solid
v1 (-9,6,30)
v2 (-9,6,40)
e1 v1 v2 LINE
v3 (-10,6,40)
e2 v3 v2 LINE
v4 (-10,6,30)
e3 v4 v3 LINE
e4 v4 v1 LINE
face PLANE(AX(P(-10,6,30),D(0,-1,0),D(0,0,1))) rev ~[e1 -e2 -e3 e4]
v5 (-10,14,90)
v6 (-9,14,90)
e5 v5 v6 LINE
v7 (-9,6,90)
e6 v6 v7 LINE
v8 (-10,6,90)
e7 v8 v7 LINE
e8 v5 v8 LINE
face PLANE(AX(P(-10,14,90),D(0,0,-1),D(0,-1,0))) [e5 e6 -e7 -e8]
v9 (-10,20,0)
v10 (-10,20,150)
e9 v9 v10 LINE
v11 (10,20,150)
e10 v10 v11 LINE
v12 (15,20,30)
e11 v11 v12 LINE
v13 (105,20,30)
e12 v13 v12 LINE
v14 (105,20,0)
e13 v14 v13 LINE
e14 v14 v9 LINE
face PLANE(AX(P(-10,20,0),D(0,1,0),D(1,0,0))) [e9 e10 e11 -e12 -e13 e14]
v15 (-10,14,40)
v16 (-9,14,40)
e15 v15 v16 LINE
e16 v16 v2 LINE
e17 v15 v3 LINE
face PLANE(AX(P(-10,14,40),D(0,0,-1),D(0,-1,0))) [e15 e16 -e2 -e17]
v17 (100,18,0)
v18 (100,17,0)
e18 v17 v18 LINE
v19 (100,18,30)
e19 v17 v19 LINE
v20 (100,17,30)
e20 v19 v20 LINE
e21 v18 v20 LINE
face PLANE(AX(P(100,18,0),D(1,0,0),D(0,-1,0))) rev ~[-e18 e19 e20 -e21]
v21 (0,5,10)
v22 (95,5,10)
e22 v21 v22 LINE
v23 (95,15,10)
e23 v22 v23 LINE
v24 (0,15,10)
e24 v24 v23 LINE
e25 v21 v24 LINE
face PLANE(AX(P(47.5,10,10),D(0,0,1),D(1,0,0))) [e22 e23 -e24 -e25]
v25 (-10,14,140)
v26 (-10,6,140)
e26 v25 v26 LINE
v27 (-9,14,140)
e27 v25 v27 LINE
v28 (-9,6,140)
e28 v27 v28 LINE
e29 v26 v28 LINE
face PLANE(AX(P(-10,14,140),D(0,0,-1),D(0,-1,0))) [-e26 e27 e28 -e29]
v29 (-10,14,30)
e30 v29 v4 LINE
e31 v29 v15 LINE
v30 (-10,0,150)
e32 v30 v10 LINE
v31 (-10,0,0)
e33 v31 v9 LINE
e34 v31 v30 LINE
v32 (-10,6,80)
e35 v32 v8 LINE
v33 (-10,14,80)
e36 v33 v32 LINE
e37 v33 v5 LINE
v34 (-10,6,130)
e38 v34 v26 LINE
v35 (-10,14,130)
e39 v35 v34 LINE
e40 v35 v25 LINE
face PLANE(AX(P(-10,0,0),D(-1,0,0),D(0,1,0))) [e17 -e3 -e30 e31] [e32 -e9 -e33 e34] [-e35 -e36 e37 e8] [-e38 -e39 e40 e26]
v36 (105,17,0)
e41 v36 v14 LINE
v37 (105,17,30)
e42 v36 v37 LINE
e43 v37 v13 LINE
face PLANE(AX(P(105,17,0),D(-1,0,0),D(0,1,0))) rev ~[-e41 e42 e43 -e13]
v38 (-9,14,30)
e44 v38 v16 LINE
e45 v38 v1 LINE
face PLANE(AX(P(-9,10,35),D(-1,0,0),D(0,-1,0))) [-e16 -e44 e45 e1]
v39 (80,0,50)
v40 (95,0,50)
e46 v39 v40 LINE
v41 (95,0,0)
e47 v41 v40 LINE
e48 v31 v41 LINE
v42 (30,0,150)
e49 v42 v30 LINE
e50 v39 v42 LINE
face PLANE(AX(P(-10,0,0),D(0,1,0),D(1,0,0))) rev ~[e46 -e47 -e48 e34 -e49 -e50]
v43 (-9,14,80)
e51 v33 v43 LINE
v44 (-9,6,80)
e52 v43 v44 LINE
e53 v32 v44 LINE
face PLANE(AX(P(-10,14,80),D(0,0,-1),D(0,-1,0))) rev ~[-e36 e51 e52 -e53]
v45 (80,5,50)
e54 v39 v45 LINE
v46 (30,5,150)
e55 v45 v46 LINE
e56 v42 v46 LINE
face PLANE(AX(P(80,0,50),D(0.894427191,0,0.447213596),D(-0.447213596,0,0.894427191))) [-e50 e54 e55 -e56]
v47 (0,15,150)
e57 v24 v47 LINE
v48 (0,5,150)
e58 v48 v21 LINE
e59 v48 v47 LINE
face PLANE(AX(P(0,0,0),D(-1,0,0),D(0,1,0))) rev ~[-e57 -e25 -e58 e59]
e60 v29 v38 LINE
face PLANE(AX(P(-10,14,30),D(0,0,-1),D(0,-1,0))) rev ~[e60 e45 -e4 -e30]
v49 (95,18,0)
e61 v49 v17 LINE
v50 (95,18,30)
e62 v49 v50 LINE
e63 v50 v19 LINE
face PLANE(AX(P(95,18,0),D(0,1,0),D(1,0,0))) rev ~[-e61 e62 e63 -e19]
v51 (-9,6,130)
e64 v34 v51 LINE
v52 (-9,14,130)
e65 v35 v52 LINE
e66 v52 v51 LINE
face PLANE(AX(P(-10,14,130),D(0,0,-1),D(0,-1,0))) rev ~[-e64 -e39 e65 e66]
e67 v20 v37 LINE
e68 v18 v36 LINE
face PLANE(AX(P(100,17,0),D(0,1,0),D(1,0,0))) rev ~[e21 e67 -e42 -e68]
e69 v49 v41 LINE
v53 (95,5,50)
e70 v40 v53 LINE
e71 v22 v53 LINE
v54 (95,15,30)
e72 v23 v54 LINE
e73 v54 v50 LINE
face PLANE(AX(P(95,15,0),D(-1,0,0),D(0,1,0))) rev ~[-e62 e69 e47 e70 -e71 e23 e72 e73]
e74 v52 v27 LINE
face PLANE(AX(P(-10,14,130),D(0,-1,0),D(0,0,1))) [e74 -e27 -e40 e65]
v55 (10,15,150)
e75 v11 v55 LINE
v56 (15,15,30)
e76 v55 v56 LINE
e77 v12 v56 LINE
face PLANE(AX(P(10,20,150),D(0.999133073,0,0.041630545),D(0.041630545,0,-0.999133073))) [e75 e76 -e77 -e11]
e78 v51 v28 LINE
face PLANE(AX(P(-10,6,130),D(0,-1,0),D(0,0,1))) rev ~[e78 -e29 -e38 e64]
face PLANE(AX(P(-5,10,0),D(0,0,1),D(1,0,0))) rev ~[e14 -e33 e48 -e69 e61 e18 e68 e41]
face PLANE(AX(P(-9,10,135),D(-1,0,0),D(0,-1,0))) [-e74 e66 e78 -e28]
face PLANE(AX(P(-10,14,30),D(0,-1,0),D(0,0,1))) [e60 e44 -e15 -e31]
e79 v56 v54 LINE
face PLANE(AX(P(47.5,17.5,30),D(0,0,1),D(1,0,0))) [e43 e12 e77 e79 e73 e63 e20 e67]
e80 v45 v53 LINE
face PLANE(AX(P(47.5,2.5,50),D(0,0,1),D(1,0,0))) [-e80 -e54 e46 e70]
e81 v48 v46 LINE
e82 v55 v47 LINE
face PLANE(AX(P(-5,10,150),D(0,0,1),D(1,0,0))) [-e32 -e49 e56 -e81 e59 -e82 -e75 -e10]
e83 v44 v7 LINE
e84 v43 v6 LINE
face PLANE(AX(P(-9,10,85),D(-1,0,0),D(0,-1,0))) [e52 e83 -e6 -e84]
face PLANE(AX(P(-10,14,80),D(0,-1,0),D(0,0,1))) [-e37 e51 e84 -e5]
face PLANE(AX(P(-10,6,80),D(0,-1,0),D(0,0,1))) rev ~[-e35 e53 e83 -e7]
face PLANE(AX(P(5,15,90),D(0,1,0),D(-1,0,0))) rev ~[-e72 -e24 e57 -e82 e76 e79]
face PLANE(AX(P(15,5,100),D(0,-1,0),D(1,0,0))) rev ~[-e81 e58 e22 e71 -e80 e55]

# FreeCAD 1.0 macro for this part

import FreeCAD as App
import Part
import Sketcher

V = App.Vector

doc = App.newDocument("Part")
body = doc.addObject("PartDesign::Body", "Body")

sketch1 = doc.addObject("Sketcher::SketchObject", "Sketch")
body.addObject(sketch1)
sketch1.AttachmentSupport = (doc.XY_Plane, [""])
sketch1.MapMode = "FlatFace"
sketch1.addGeometry(Part.LineSegment(V(0, 5, 0), V(0, 0, 0)), False)
sketch1.addGeometry(Part.LineSegment(V(0, 0, 0), V(95, 0, 0)), False)
sketch1.addGeometry(Part.LineSegment(V(95, 0, 0), V(95, 5, 0)), False)
sketch1.addGeometry(Part.LineSegment(V(95, 5, 0), V(0, 5, 0)), False)
sketch1.addConstraint(Sketcher.Constraint("Coincident", 0, 2, 1, 1))
sketch1.addConstraint(Sketcher.Constraint("Coincident", 1, 2, 2, 1))
sketch1.addConstraint(Sketcher.Constraint("Coincident", 2, 2, 3, 1))
sketch1.addConstraint(Sketcher.Constraint("Coincident", 3, 2, 0, 1))
sketch1.addConstraint(Sketcher.Constraint("Vertical", 0))
sketch1.addConstraint(Sketcher.Constraint("Horizontal", 1))
sketch1.addConstraint(Sketcher.Constraint("Vertical", 2))
sketch1.addConstraint(Sketcher.Constraint("Horizontal", 3))
sketch1.addConstraint(Sketcher.Constraint("Coincident", 0, 2, -1, 1))
sketch1.addConstraint(Sketcher.Constraint("DistanceX", 1, 1, 1, 2, 95.0))
sketch1.addConstraint(Sketcher.Constraint("DistanceY", 0, 2, 0, 1, 5.0))
pad1 = doc.addObject("PartDesign::Pad", "Pad")
body.addObject(pad1)
pad1.Profile = sketch1
pad1.Length = 50

sketch2 = doc.addObject("Sketcher::SketchObject", "Sketch001")
body.addObject(sketch2)
sketch2.AttachmentSupport = (doc.XY_Plane, [""])
sketch2.MapMode = "FlatFace"
sketch2.addGeometry(Part.LineSegment(V(0, 15, 0), V(0, 5, 0)), False)
sketch2.addGeometry(Part.LineSegment(V(0, 5, 0), V(95, 5, 0)), False)
sketch2.addGeometry(Part.LineSegment(V(95, 5, 0), V(95, 15, 0)), False)
sketch2.addGeometry(Part.LineSegment(V(95, 15, 0), V(0, 15, 0)), False)
sketch2.addConstraint(Sketcher.Constraint("Coincident", 0, 2, 1, 1))
sketch2.addConstraint(Sketcher.Constraint("Coincident", 1, 2, 2, 1))
sketch2.addConstraint(Sketcher.Constraint("Coincident", 2, 2, 3, 1))
sketch2.addConstraint(Sketcher.Constraint("Coincident", 3, 2, 0, 1))
sketch2.addConstraint(Sketcher.Constraint("Vertical", 0))
sketch2.addConstraint(Sketcher.Constraint("Horizontal", 1))
sketch2.addConstraint(Sketcher.Constraint("Vertical", 2))
sketch2.addConstraint(Sketcher.Constraint("Horizontal", 3))
sketch2.addConstraint(Sketcher.Constraint("PointOnObject", 0, 2, -2))
sketch2.addConstraint(Sketcher.Constraint("DistanceX", 1, 1, 1, 2, 95.0))
sketch2.addConstraint(Sketcher.Constraint("DistanceY", 0, 2, 0, 1, 10.0))
sketch2.addConstraint(Sketcher.Constraint("DistanceY", -1, 1, 0, 2, 5.0))
pad2 = doc.addObject("PartDesign::Pad", "Pad001")
body.addObject(pad2)
pad2.Profile = sketch2
pad2.Length = 10

sketch3 = doc.addObject("Sketcher::SketchObject", "Sketch002")
body.addObject(sketch3)
sketch3.AttachmentSupport = (doc.XY_Plane, [""])
sketch3.MapMode = "FlatFace"
sketch3.addGeometry(Part.LineSegment(V(0, 20, 0), V(0, 15, 0)), False)
sketch3.addGeometry(Part.LineSegment(V(0, 15, 0), V(95, 15, 0)), False)
sketch3.addGeometry(Part.LineSegment(V(95, 15, 0), V(95, 18, 0)), False)
sketch3.addGeometry(Part.LineSegment(V(95, 18, 0), V(100, 18, 0)), False)
sketch3.addGeometry(Part.LineSegment(V(100, 18, 0), V(100, 17, 0)), False)
sketch3.addGeometry(Part.LineSegment(V(100, 17, 0), V(105, 17, 0)), False)
sketch3.addGeometry(Part.LineSegment(V(105, 17, 0), V(105, 20, 0)), False)
sketch3.addGeometry(Part.LineSegment(V(105, 20, 0), V(0, 20, 0)), False)
sketch3.addConstraint(Sketcher.Constraint("Coincident", 0, 2, 1, 1))
sketch3.addConstraint(Sketcher.Constraint("Coincident", 1, 2, 2, 1))
sketch3.addConstraint(Sketcher.Constraint("Coincident", 2, 2, 3, 1))
sketch3.addConstraint(Sketcher.Constraint("Coincident", 3, 2, 4, 1))
sketch3.addConstraint(Sketcher.Constraint("Coincident", 4, 2, 5, 1))
sketch3.addConstraint(Sketcher.Constraint("Coincident", 5, 2, 6, 1))
sketch3.addConstraint(Sketcher.Constraint("Coincident", 6, 2, 7, 1))
sketch3.addConstraint(Sketcher.Constraint("Coincident", 7, 2, 0, 1))
sketch3.addConstraint(Sketcher.Constraint("Vertical", 0))
sketch3.addConstraint(Sketcher.Constraint("Horizontal", 1))
sketch3.addConstraint(Sketcher.Constraint("Vertical", 2))
sketch3.addConstraint(Sketcher.Constraint("Horizontal", 3))
sketch3.addConstraint(Sketcher.Constraint("Vertical", 4))
sketch3.addConstraint(Sketcher.Constraint("Horizontal", 5))
sketch3.addConstraint(Sketcher.Constraint("Vertical", 6))
sketch3.addConstraint(Sketcher.Constraint("Horizontal", 7))
sketch3.addConstraint(Sketcher.Constraint("PointOnObject", 0, 2, -2))
sketch3.addConstraint(Sketcher.Constraint("Equal", 3, 5))
sketch3.addConstraint(Sketcher.Constraint("Equal", 5, 0))
sketch3.addConstraint(Sketcher.Constraint("Equal", 2, 6))
sketch3.addConstraint(Sketcher.Constraint("DistanceX", 1, 1, 1, 2, 95.0))
sketch3.addConstraint(Sketcher.Constraint("DistanceX", 3, 1, 3, 2, 5.0))
sketch3.addConstraint(Sketcher.Constraint("DistanceY", 2, 1, 2, 2, 3.0))
sketch3.addConstraint(Sketcher.Constraint("DistanceY", -1, 1, 0, 2, 15.0))
pad3 = doc.addObject("PartDesign::Pad", "Pad002")
body.addObject(pad3)
pad3.Profile = sketch3
pad3.Length = 30

sketch4 = doc.addObject("Sketcher::SketchObject", "Sketch003")
body.addObject(sketch4)
sketch4.AttachmentSupport = (doc.XZ_Plane, [""])
sketch4.MapMode = "FlatFace"
sketch4.AttachmentOffset = App.Placement(V(0, 0, -20), App.Rotation())
sketch4.addGeometry(Part.LineSegment(V(0, 30, 0), V(0, 150, 0)), False)
sketch4.addGeometry(Part.LineSegment(V(0, 150, 0), V(10, 150, 0)), False)
sketch4.addGeometry(Part.LineSegment(V(10, 150, 0), V(15, 30, 0)), False)
sketch4.addGeometry(Part.LineSegment(V(15, 30, 0), V(0, 30, 0)), False)
sketch4.addConstraint(Sketcher.Constraint("Coincident", 0, 2, 1, 1))
sketch4.addConstraint(Sketcher.Constraint("Coincident", 1, 2, 2, 1))
sketch4.addConstraint(Sketcher.Constraint("Coincident", 2, 2, 3, 1))
sketch4.addConstraint(Sketcher.Constraint("Coincident", 3, 2, 0, 1))
sketch4.addConstraint(Sketcher.Constraint("Vertical", 0))
sketch4.addConstraint(Sketcher.Constraint("Horizontal", 1))
sketch4.addConstraint(Sketcher.Constraint("Horizontal", 3))
sketch4.addConstraint(Sketcher.Constraint("PointOnObject", 0, 2, -2))
sketch4.addConstraint(Sketcher.Constraint("DistanceX", 1, 1, 1, 2, 10.0))
sketch4.addConstraint(Sketcher.Constraint("DistanceX", 3, 2, 3, 1, 15.0))
sketch4.addConstraint(Sketcher.Constraint("DistanceY", 0, 1, 0, 2, 120.0))
sketch4.addConstraint(Sketcher.Constraint("DistanceY", -1, 1, 0, 2, 150.0))
pad4 = doc.addObject("PartDesign::Pad", "Pad003")
body.addObject(pad4)
pad4.Profile = sketch4
pad4.Length = 5

sketch5 = doc.addObject("Sketcher::SketchObject", "Sketch004")
body.addObject(sketch5)
sketch5.AttachmentSupport = (doc.XZ_Plane, [""])
sketch5.MapMode = "FlatFace"
sketch5.addGeometry(Part.LineSegment(V(0, 150, 0), V(0, 50, 0)), False)
sketch5.addGeometry(Part.LineSegment(V(0, 50, 0), V(80, 50, 0)), False)
sketch5.addGeometry(Part.LineSegment(V(80, 50, 0), V(30, 150, 0)), False)
sketch5.addGeometry(Part.LineSegment(V(30, 150, 0), V(0, 150, 0)), False)
sketch5.addConstraint(Sketcher.Constraint("Coincident", 0, 2, 1, 1))
sketch5.addConstraint(Sketcher.Constraint("Coincident", 1, 2, 2, 1))
sketch5.addConstraint(Sketcher.Constraint("Coincident", 2, 2, 3, 1))
sketch5.addConstraint(Sketcher.Constraint("Coincident", 3, 2, 0, 1))
sketch5.addConstraint(Sketcher.Constraint("Vertical", 0))
sketch5.addConstraint(Sketcher.Constraint("Horizontal", 1))
sketch5.addConstraint(Sketcher.Constraint("Horizontal", 3))
sketch5.addConstraint(Sketcher.Constraint("PointOnObject", 0, 2, -2))
sketch5.addConstraint(Sketcher.Constraint("DistanceX", 1, 1, 1, 2, 80.0))
sketch5.addConstraint(Sketcher.Constraint("DistanceX", 3, 2, 3, 1, 30.0))
sketch5.addConstraint(Sketcher.Constraint("DistanceY", 0, 2, 0, 1, 100.0))
sketch5.addConstraint(Sketcher.Constraint("DistanceY", -1, 1, 0, 2, 50.0))
pad5 = doc.addObject("PartDesign::Pad", "Pad004")
body.addObject(pad5)
pad5.Profile = sketch5
pad5.Length = 5
pad5.Reversed = True

sketch6 = doc.addObject("Sketcher::SketchObject", "Sketch005")
body.addObject(sketch6)
sketch6.AttachmentSupport = (doc.XY_Plane, [""])
sketch6.MapMode = "FlatFace"
sketch6.addGeometry(Part.LineSegment(V(-10, 20, 0), V(-10, 0, 0)), False)
sketch6.addGeometry(Part.LineSegment(V(-10, 0, 0), V(0, 0, 0)), False)
sketch6.addGeometry(Part.LineSegment(V(0, 0, 0), V(0, 20, 0)), False)
sketch6.addGeometry(Part.LineSegment(V(0, 20, 0), V(-10, 20, 0)), False)
sketch6.addConstraint(Sketcher.Constraint("Coincident", 0, 2, 1, 1))
sketch6.addConstraint(Sketcher.Constraint("Coincident", 1, 2, 2, 1))
sketch6.addConstraint(Sketcher.Constraint("Coincident", 2, 2, 3, 1))
sketch6.addConstraint(Sketcher.Constraint("Coincident", 3, 2, 0, 1))
sketch6.addConstraint(Sketcher.Constraint("Vertical", 0))
sketch6.addConstraint(Sketcher.Constraint("Horizontal", 1))
sketch6.addConstraint(Sketcher.Constraint("Vertical", 2))
sketch6.addConstraint(Sketcher.Constraint("Horizontal", 3))
sketch6.addConstraint(Sketcher.Constraint("Coincident", 1, 2, -1, 1))
sketch6.addConstraint(Sketcher.Constraint("DistanceX", 1, 1, 1, 2, 10.0))
sketch6.addConstraint(Sketcher.Constraint("DistanceY", 0, 2, 0, 1, 20.0))
pad6 = doc.addObject("PartDesign::Pad", "Pad005")
body.addObject(pad6)
pad6.Profile = sketch6
pad6.Length = 150

sketch7 = doc.addObject("Sketcher::SketchObject", "Sketch006")
body.addObject(sketch7)
sketch7.AttachmentSupport = (doc.YZ_Plane, [""])
sketch7.MapMode = "FlatFace"
sketch7.AttachmentOffset = App.Placement(V(0, 0, -10), App.Rotation())
sketch7.addGeometry(Part.LineSegment(V(14, 140, 0), V(14, 130, 0)), False)
sketch7.addGeometry(Part.LineSegment(V(14, 130, 0), V(6, 130, 0)), False)
sketch7.addGeometry(Part.LineSegment(V(6, 130, 0), V(6, 140, 0)), False)
sketch7.addGeometry(Part.LineSegment(V(6, 140, 0), V(14, 140, 0)), False)
sketch7.addGeometry(Part.LineSegment(V(14, 90, 0), V(14, 80, 0)), False)
sketch7.addGeometry(Part.LineSegment(V(14, 80, 0), V(6, 80, 0)), False)
sketch7.addGeometry(Part.LineSegment(V(6, 80, 0), V(6, 90, 0)), False)
sketch7.addGeometry(Part.LineSegment(V(6, 90, 0), V(14, 90, 0)), False)
sketch7.addGeometry(Part.LineSegment(V(14, 40, 0), V(14, 30, 0)), False)
sketch7.addGeometry(Part.LineSegment(V(14, 30, 0), V(6, 30, 0)), False)
sketch7.addGeometry(Part.LineSegment(V(6, 30, 0), V(6, 40, 0)), False)
sketch7.addGeometry(Part.LineSegment(V(6, 40, 0), V(14, 40, 0)), False)
sketch7.addConstraint(Sketcher.Constraint("Coincident", 0, 2, 1, 1))
sketch7.addConstraint(Sketcher.Constraint("Coincident", 1, 2, 2, 1))
sketch7.addConstraint(Sketcher.Constraint("Coincident", 2, 2, 3, 1))
sketch7.addConstraint(Sketcher.Constraint("Coincident", 3, 2, 0, 1))
sketch7.addConstraint(Sketcher.Constraint("Coincident", 4, 2, 5, 1))
sketch7.addConstraint(Sketcher.Constraint("Coincident", 5, 2, 6, 1))
sketch7.addConstraint(Sketcher.Constraint("Coincident", 6, 2, 7, 1))
sketch7.addConstraint(Sketcher.Constraint("Coincident", 7, 2, 4, 1))
sketch7.addConstraint(Sketcher.Constraint("Coincident", 8, 2, 9, 1))
sketch7.addConstraint(Sketcher.Constraint("Coincident", 9, 2, 10, 1))
sketch7.addConstraint(Sketcher.Constraint("Coincident", 10, 2, 11, 1))
sketch7.addConstraint(Sketcher.Constraint("Coincident", 11, 2, 8, 1))
sketch7.addConstraint(Sketcher.Constraint("Vertical", 0))
sketch7.addConstraint(Sketcher.Constraint("Horizontal", 1))
sketch7.addConstraint(Sketcher.Constraint("Vertical", 2))
sketch7.addConstraint(Sketcher.Constraint("Horizontal", 3))
sketch7.addConstraint(Sketcher.Constraint("Vertical", 4))
sketch7.addConstraint(Sketcher.Constraint("Horizontal", 5))
sketch7.addConstraint(Sketcher.Constraint("Vertical", 6))
sketch7.addConstraint(Sketcher.Constraint("Horizontal", 7))
sketch7.addConstraint(Sketcher.Constraint("Vertical", 8))
sketch7.addConstraint(Sketcher.Constraint("Horizontal", 9))
sketch7.addConstraint(Sketcher.Constraint("Vertical", 10))
sketch7.addConstraint(Sketcher.Constraint("Horizontal", 11))
sketch7.addConstraint(Sketcher.Constraint("Vertical", 3, 2, 4, 2))
sketch7.addConstraint(Sketcher.Constraint("Vertical", 2, 2, 5, 2))
sketch7.addConstraint(Sketcher.Constraint("Vertical", 7, 2, 8, 2))
sketch7.addConstraint(Sketcher.Constraint("Vertical", 6, 2, 9, 2))
sketch7.addConstraint(Sketcher.Constraint("Equal", 2, 4))
sketch7.addConstraint(Sketcher.Constraint("Equal", 6, 8))
sketch7.addConstraint(Sketcher.Constraint("DistanceX", 1, 2, 1, 1, 8.0))
sketch7.addConstraint(Sketcher.Constraint("DistanceY", 0, 2, 0, 1, 10.0))
sketch7.addConstraint(Sketcher.Constraint("DistanceX", -1, 1, 0, 2, 14.0))
sketch7.addConstraint(Sketcher.Constraint("DistanceY", -1, 1, 0, 2, 130.0))
sketch7.addConstraint(Sketcher.Constraint("DistanceY", -1, 1, 4, 2, 80.0))
sketch7.addConstraint(Sketcher.Constraint("DistanceY", -1, 1, 8, 2, 30.0))
pocket1 = doc.addObject("PartDesign::Pocket", "Pocket")
body.addObject(pocket1)
pocket1.Profile = sketch7
pocket1.Length = 1
pocket1.Reversed = True

doc.recompute()
